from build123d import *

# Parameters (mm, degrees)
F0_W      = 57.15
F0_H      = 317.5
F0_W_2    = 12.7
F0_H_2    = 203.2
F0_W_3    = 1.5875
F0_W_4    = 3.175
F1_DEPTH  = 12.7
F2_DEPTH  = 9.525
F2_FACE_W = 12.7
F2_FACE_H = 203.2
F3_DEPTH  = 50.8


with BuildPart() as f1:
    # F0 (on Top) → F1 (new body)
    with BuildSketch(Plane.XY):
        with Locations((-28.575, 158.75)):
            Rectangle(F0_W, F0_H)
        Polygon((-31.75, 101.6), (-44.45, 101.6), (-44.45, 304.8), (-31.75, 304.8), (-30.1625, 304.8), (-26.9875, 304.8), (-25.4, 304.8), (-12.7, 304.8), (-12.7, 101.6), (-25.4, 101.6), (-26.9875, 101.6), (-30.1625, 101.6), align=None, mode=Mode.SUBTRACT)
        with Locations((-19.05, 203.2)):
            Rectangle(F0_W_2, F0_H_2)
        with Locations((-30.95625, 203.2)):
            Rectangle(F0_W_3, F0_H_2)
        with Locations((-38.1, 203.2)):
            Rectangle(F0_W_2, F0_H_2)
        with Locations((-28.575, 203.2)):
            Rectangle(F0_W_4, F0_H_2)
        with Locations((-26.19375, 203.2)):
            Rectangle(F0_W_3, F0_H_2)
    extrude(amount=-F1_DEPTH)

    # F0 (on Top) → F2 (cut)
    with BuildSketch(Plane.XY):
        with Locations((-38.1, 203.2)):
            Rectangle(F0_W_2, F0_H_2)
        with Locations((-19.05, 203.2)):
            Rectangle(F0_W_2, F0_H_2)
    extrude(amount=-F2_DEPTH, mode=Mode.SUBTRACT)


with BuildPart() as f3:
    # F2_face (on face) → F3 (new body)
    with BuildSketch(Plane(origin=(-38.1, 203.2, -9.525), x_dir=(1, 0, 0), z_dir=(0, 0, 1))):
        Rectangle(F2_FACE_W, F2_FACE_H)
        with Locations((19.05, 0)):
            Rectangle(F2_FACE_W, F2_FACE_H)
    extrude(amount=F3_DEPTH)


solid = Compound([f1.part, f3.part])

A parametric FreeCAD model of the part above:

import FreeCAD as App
import Part
import Sketcher
from FreeCAD import Vector
Q = App.Units.Quantity

doc = App.newDocument("Part")
params = doc.addObject("Spreadsheet::Sheet", "Params")
for row, (alias, value) in enumerate([
    ("sketch1_height", "12.5 in"),
    ("sketch1_width", "2.25 in"),
    ("pad1_length", "0.5 in"),
    ("sketch2_height", "8 in"),
    ("sketch2_width", "0.5 in"),
    ("pocket1_length", "0.375 in"),
    ("sketch3_height", "8 in"),
    ("sketch3_width", "0.5 in"),
    ("pad2_length", "2 in"),
], start=1):
    params.set(f"A{row}", alias)
    params.set(f"B{row}", "=" + value)
    params.setAlias(f"B{row}", alias)

body = doc.addObject("PartDesign::Body", "Body")

sketch1 = body.newObject("Sketcher::SketchObject", "Sketch")
sketch1.AttachmentSupport = (doc.getObject("XY_Plane"), [""])
sketch1.MapMode = "FlatFace"
sketch1.addGeometry(Part.LineSegment(Vector(-57.15, 317.5, 0), Vector(-57.15, 0, 0)), False)
sketch1.addGeometry(Part.LineSegment(Vector(-57.15, 0, 0), Vector(0, 0, 0)), False)
sketch1.addGeometry(Part.LineSegment(Vector(0, 0, 0), Vector(0, 317.5, 0)), False)
sketch1.addGeometry(Part.LineSegment(Vector(0, 317.5, 0), Vector(-57.15, 317.5, 0)), False)
sketch1.addConstraint(Sketcher.Constraint("Coincident", 0, 2, 1, 1))
sketch1.addConstraint(Sketcher.Constraint("Coincident", 1, 2, 2, 1))
sketch1.addConstraint(Sketcher.Constraint("Coincident", 2, 2, 3, 1))
sketch1.addConstraint(Sketcher.Constraint("Coincident", 3, 2, 0, 1))
sketch1.addConstraint(Sketcher.Constraint("Vertical", 0))
sketch1.addConstraint(Sketcher.Constraint("Horizontal", 1))
sketch1.addConstraint(Sketcher.Constraint("Vertical", 2))
sketch1.addConstraint(Sketcher.Constraint("Horizontal", 3))
sketch1.addConstraint(Sketcher.Constraint("Coincident", 1, 2, -1, 1))
sketch1.addConstraint(Sketcher.Constraint("DistanceY", 0, 2, 0, 1, Q("12.5 in")))
sketch1.addConstraint(Sketcher.Constraint("DistanceX", 1, 1, 1, 2, Q("2.25 in")))
sketch1.setExpression("Constraints[9]", "Params.sketch1_height")
sketch1.setExpression("Constraints[10]", "Params.sketch1_width")
pad1 = body.newObject("PartDesign::Pad", "Pad")
pad1.Profile = sketch1
pad1.setExpression("Length", "Params.pad1_length")
pad1.Reversed = True

sketch2 = body.newObject("Sketcher::SketchObject", "Sketch001")
sketch2.AttachmentSupport = (doc.getObject("XY_Plane"), [""])
sketch2.MapMode = "FlatFace"
sketch2.addGeometry(Part.LineSegment(Vector(-44.45, 304.8, 0), Vector(-44.45, 101.6, 0)), False)
sketch2.addGeometry(Part.LineSegment(Vector(-44.45, 101.6, 0), Vector(-31.75, 101.6, 0)), False)
sketch2.addGeometry(Part.LineSegment(Vector(-31.75, 101.6, 0), Vector(-31.75, 304.8, 0)), False)
sketch2.addGeometry(Part.LineSegment(Vector(-31.75, 304.8, 0), Vector(-44.45, 304.8, 0)), False)
sketch2.addGeometry(Part.LineSegment(Vector(-25.4, 304.8, 0), Vector(-25.4, 101.6, 0)), False)
sketch2.addGeometry(Part.LineSegment(Vector(-25.4, 101.6, 0), Vector(-12.7, 101.6, 0)), False)
sketch2.addGeometry(Part.LineSegment(Vector(-12.7, 101.6, 0), Vector(-12.7, 304.8, 0)), False)
sketch2.addGeometry(Part.LineSegment(Vector(-12.7, 304.8, 0), Vector(-25.4, 304.8, 0)), False)
sketch2.addConstraint(Sketcher.Constraint("Coincident", 0, 2, 1, 1))
sketch2.addConstraint(Sketcher.Constraint("Coincident", 1, 2, 2, 1))
sketch2.addConstraint(Sketcher.Constraint("Coincident", 2, 2, 3, 1))
sketch2.addConstraint(Sketcher.Constraint("Coincident", 3, 2, 0, 1))
sketch2.addConstraint(Sketcher.Constraint("Coincident", 4, 2, 5, 1))
sketch2.addConstraint(Sketcher.Constraint("Coincident", 5, 2, 6, 1))
sketch2.addConstraint(Sketcher.Constraint("Coincident", 6, 2, 7, 1))
sketch2.addConstraint(Sketcher.Constraint("Coincident", 7, 2, 4, 1))
sketch2.addConstraint(Sketcher.Constraint("Vertical", 0))
sketch2.addConstraint(Sketcher.Constraint("Horizontal", 1))
sketch2.addConstraint(Sketcher.Constraint("Vertical", 2))
sketch2.addConstraint(Sketcher.Constraint("Horizontal", 3))
sketch2.addConstraint(Sketcher.Constraint("Vertical", 4))
sketch2.addConstraint(Sketcher.Constraint("Horizontal", 5))
sketch2.addConstraint(Sketcher.Constraint("Vertical", 6))
sketch2.addConstraint(Sketcher.Constraint("Horizontal", 7))
sketch2.addConstraint(Sketcher.Constraint("Horizontal", 1, 2, 4, 2))
sketch2.addConstraint(Sketcher.Constraint("Horizontal", 3, 2, 6, 2))
sketch2.addConstraint(Sketcher.Constraint("Equal", 3, 5))
sketch2.addConstraint(Sketcher.Constraint("DistanceY", 0, 2, 0, 1, Q("8 in")))
sketch2.addConstraint(Sketcher.Constraint("DistanceX", 1, 1, 1, 2, Q("0.5 in")))
sketch2.addConstraint(Sketcher.Constraint("DistanceY", -1, 1, 0, 2, Q("4 in")))
sketch2.addConstraint(Sketcher.Constraint("DistanceX", 4, 2, -1, 1, Q("1 in")))
sketch2.addConstraint(Sketcher.Constraint("DistanceX", 0, 2, -1, 1, Q("1.75 in")))
sketch2.setExpression("Constraints[19]", "Params.sketch2_height")
sketch2.setExpression("Constraints[20]", "Params.sketch2_width")
pocket1 = body.newObject("PartDesign::Pocket", "Pocket")
pocket1.Profile = sketch2
pocket1.setExpression("Length", "Params.pocket1_length")
body2 = doc.addObject("PartDesign::Body", "Body001")
body2.AllowCompound = True

sketch3 = body2.newObject("Sketcher::SketchObject", "Sketch002")
sketch3.AttachmentSupport = (doc.getObject("XY_Plane001"), [""])
sketch3.MapMode = "FlatFace"
sketch3.AttachmentOffset = App.Placement(Vector(0, 0, -0.375 * 25.4), App.Rotation())
sketch3.addGeometry(Part.LineSegment(Vector(-44.45, 304.8, 0), Vector(-44.45, 101.6, 0)), False)
sketch3.addGeometry(Part.LineSegment(Vector(-44.45, 101.6, 0), Vector(-31.75, 101.6, 0)), False)
sketch3.addGeometry(Part.LineSegment(Vector(-31.75, 101.6, 0), Vector(-31.75, 304.8, 0)), False)
sketch3.addGeometry(Part.LineSegment(Vector(-31.75, 304.8, 0), Vector(-44.45, 304.8, 0)), False)
sketch3.addGeometry(Part.LineSegment(Vector(-25.4, 304.8, 0), Vector(-25.4, 101.6, 0)), False)
sketch3.addGeometry(Part.LineSegment(Vector(-25.4, 101.6, 0), Vector(-12.7, 101.6, 0)), False)
sketch3.addGeometry(Part.LineSegment(Vector(-12.7, 101.6, 0), Vector(-12.7, 304.8, 0)), False)
sketch3.addGeometry(Part.LineSegment(Vector(-12.7, 304.8, 0), Vector(-25.4, 304.8, 0)), False)
sketch3.addConstraint(Sketcher.Constraint("Coincident", 0, 2, 1, 1))
sketch3.addConstraint(Sketcher.Constraint("Coincident", 1, 2, 2, 1))
sketch3.addConstraint(Sketcher.Constraint("Coincident", 2, 2, 3, 1))
sketch3.addConstraint(Sketcher.Constraint("Coincident", 3, 2, 0, 1))
sketch3.addConstraint(Sketcher.Constraint("Coincident", 4, 2, 5, 1))
sketch3.addConstraint(Sketcher.Constraint("Coincident", 5, 2, 6, 1))
sketch3.addConstraint(Sketcher.Constraint("Coincident", 6, 2, 7, 1))
sketch3.addConstraint(Sketcher.Constraint("Coincident", 7, 2, 4, 1))
sketch3.addConstraint(Sketcher.Constraint("Vertical", 0))
sketch3.addConstraint(Sketcher.Constraint("Horizontal", 1))
sketch3.addConstraint(Sketcher.Constraint("Vertical", 2))
sketch3.addConstraint(Sketcher.Constraint("Horizontal", 3))
sketch3.addConstraint(Sketcher.Constraint("Vertical", 4))
sketch3.addConstraint(Sketcher.Constraint("Horizontal", 5))
sketch3.addConstraint(Sketcher.Constraint("Vertical", 6))
sketch3.addConstraint(Sketcher.Constraint("Horizontal", 7))
sketch3.addConstraint(Sketcher.Constraint("Horizontal", 1, 2, 4, 2))
sketch3.addConstraint(Sketcher.Constraint("Horizontal", 3, 2, 6, 2))
sketch3.addConstraint(Sketcher.Constraint("Equal", 3, 5))
sketch3.addConstraint(Sketcher.Constraint("DistanceY", 0, 2, 0, 1, Q("8 in")))
sketch3.addConstraint(Sketcher.Constraint("DistanceX", 1, 1, 1, 2, Q("0.5 in")))
sketch3.addConstraint(Sketcher.Constraint("DistanceY", -1, 1, 0, 2, Q("4 in")))
sketch3.addConstraint(Sketcher.Constraint("DistanceX", 4, 2, -1, 1, Q("1 in")))
sketch3.addConstraint(Sketcher.Constraint("DistanceX", 0, 2, -1, 1, Q("1.75 in")))
sketch3.setExpression("Constraints[19]", "Params.sketch3_height")
sketch3.setExpression("Constraints[20]", "Params.sketch3_width")
pad2 = body2.newObject("PartDesign::Pad", "Pad001")
pad2.Profile = sketch3
pad2.setExpression("Length", "Params.pad2_length")

doc.recompute()
